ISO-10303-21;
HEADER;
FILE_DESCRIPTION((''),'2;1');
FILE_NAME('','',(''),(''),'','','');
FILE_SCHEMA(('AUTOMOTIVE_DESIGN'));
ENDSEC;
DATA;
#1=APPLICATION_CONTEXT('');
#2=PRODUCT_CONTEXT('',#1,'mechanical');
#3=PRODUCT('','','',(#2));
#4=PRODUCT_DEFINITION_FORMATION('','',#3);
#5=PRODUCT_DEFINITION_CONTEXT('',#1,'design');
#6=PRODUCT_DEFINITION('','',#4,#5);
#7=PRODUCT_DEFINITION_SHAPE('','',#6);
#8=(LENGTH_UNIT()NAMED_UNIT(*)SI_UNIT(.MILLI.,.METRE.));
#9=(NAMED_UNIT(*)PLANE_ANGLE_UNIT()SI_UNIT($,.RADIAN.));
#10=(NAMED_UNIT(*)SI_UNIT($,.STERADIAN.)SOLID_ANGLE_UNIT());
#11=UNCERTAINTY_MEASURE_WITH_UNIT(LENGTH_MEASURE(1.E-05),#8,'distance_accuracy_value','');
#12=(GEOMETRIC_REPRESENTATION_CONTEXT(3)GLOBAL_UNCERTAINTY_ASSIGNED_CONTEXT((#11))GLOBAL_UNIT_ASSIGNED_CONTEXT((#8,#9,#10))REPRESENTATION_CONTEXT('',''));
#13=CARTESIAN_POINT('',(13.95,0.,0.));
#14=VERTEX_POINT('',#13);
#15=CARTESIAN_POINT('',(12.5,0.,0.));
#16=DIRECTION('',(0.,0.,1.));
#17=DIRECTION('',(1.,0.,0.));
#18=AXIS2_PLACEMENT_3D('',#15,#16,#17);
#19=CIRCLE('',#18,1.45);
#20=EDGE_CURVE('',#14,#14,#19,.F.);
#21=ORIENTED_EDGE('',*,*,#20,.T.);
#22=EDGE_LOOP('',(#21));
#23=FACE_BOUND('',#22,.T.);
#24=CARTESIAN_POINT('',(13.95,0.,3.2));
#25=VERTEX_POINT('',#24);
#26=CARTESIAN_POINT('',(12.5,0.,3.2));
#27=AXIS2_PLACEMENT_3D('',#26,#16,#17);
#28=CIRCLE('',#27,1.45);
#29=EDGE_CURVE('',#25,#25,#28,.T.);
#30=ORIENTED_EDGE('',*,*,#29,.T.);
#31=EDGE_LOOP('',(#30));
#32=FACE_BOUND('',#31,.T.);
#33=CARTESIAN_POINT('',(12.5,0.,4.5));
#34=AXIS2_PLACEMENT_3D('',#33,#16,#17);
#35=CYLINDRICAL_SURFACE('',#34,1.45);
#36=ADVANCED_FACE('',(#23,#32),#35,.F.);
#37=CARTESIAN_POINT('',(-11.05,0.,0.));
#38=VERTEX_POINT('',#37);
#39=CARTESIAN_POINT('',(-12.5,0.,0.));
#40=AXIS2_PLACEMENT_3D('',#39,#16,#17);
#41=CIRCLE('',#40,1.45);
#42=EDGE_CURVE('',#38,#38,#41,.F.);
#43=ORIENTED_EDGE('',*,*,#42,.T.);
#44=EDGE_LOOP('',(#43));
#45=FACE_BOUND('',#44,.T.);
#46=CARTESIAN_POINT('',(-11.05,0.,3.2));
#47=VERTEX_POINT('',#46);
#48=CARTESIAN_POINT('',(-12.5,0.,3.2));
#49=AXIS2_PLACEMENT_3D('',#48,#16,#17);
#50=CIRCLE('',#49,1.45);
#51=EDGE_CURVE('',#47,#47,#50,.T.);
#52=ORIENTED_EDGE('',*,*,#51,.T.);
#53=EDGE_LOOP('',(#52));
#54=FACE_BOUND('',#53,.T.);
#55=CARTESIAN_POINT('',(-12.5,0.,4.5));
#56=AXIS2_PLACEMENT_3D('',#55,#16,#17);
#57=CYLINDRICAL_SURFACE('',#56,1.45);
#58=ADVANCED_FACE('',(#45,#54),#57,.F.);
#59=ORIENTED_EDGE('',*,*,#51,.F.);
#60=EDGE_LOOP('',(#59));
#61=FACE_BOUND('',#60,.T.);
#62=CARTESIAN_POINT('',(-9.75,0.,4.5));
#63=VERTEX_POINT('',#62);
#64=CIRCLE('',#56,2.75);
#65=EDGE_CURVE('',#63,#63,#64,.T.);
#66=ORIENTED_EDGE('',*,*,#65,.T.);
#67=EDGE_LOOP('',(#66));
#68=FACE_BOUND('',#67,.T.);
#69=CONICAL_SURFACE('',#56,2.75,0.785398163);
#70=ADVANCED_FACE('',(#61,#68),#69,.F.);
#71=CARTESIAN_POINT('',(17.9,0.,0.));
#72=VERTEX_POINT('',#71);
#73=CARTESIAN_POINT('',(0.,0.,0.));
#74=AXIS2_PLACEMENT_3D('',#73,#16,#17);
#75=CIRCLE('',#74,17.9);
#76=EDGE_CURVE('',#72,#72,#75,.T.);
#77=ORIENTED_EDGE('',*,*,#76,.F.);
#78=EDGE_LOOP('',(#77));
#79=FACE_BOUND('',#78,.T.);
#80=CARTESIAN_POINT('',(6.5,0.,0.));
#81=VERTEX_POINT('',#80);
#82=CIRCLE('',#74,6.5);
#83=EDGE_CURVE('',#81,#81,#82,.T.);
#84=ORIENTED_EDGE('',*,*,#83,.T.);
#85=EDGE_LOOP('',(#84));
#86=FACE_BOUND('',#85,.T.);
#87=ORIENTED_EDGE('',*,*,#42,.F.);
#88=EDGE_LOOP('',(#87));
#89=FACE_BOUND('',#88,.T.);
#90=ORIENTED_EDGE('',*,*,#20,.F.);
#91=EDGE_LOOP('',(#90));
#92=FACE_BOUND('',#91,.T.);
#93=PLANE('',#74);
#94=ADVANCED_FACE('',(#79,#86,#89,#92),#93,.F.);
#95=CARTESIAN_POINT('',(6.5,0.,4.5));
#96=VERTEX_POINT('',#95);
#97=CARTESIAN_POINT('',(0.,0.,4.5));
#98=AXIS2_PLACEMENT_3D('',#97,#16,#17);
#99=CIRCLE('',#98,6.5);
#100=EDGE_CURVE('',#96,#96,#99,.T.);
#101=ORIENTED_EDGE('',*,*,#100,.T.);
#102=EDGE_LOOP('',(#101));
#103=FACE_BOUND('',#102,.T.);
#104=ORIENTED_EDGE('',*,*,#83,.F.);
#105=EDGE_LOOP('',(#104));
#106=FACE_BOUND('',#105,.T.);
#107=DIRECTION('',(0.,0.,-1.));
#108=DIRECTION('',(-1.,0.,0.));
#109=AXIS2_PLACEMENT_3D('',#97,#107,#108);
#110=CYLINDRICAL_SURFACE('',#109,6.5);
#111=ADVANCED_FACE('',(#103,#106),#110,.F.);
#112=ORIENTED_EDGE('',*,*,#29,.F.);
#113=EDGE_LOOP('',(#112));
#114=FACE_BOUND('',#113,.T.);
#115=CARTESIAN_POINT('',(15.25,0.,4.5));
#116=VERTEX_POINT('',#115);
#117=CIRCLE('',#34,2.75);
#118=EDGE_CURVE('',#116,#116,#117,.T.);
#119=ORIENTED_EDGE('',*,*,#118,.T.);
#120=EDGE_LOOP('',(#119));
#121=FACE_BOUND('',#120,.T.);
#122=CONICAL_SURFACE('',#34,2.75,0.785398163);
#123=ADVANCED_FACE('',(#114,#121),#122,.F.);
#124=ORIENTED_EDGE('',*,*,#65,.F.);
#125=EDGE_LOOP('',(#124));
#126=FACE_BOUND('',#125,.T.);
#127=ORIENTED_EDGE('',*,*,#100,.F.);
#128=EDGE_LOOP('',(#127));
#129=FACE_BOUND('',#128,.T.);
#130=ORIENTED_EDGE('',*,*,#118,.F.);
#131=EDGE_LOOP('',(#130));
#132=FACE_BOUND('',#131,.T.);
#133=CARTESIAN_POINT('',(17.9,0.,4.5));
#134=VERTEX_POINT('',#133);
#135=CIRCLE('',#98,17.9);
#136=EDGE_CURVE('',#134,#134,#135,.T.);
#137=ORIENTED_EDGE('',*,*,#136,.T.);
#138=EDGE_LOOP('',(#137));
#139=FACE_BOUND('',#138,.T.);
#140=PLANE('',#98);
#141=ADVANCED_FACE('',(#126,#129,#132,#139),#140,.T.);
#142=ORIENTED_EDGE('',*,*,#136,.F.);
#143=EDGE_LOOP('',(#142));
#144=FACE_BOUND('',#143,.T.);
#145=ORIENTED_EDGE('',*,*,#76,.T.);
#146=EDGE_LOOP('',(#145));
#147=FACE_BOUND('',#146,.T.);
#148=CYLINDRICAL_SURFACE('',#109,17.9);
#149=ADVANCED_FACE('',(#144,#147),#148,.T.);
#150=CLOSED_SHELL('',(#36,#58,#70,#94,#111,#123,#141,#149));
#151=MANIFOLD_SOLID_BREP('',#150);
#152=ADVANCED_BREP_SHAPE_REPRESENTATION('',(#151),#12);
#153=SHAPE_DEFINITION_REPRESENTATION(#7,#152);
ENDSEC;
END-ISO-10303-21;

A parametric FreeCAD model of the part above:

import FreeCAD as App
import Part
import Sketcher
Q = App.Units.Quantity

doc = App.newDocument("Part")
body = doc.addObject("PartDesign::Body", "Body")

sketch1 = doc.addObject("Sketcher::SketchObject", "Sketch")
body.addObject(sketch1)
sketch1.AttachmentSupport = (doc.XY_Plane, [""])
sketch1.MapMode = "FlatFace"
sketch1.addGeometry([
    Part.Circle(App.Vector(0, 0, 0), App.Vector(0, 0, 1), 18),
    Part.Circle(App.Vector(0, 0, 0), App.Vector(0, 0, 1), 6),
], False)
sketch1.addConstraint([
    Sketcher.Constraint("Coincident", 0, 3, -1, 1),
    Sketcher.Constraint("Coincident", 1, 3, -1, 1),
    Sketcher.Constraint("Diameter", 1, Q("13 mm")),
    Sketcher.Constraint("Diameter", 0, Q("35.8 mm")),
])
pad1 = doc.addObject("PartDesign::Pad", "Pad")
body.addObject(pad1)
pad1.Profile = sketch1
pad1.Length = 4.5

sketch2 = doc.addObject("Sketcher::SketchObject", "Sketch001")
body.addObject(sketch2)
sketch2.AttachmentSupport = (doc.XY_Plane, [""])
sketch2.MapMode = "FlatFace"
sketch2.AttachmentOffset = App.Placement(App.Vector(0, 0, 4.5), App.Rotation())
sketch2.addGeometry([
    Part.Circle(App.Vector(-12.5, 0, 0), App.Vector(0, 0, 1), 1.4),
    Part.Circle(App.Vector(12.5, 0, 0), App.Vector(0, 0, 1), 1.4),
], False)
sketch2.addConstraint([
    Sketcher.Constraint("Equal", 0, 1),
    Sketcher.Constraint("Symmetric", 0, 3, 1, 3, -1, 1),
    Sketcher.Constraint("PointOnObject", 0, 3, -1),
    Sketcher.Constraint("Diameter", 0, Q("2.9 mm")),
    Sketcher.Constraint("DistanceX", 0, 3, 1, 3, Q("25 mm")),
])
doc.recompute()
hole = doc.addObject("PartDesign::Hole", "Hole")
body.addObject(hole)
hole.Profile = sketch2
hole.ThreadType = "None"
hole.Diameter = 2.9
hole.DepthType = "Dimension"
hole.Depth = 4.5
hole.DrillPoint = "Angled"
hole.DrillPointAngle = 118
hole.HoleCutType = "Countersink"
hole.HoleCutDiameter = 5.5
hole.HoleCutCountersinkAngle = 90

doc.recompute()
